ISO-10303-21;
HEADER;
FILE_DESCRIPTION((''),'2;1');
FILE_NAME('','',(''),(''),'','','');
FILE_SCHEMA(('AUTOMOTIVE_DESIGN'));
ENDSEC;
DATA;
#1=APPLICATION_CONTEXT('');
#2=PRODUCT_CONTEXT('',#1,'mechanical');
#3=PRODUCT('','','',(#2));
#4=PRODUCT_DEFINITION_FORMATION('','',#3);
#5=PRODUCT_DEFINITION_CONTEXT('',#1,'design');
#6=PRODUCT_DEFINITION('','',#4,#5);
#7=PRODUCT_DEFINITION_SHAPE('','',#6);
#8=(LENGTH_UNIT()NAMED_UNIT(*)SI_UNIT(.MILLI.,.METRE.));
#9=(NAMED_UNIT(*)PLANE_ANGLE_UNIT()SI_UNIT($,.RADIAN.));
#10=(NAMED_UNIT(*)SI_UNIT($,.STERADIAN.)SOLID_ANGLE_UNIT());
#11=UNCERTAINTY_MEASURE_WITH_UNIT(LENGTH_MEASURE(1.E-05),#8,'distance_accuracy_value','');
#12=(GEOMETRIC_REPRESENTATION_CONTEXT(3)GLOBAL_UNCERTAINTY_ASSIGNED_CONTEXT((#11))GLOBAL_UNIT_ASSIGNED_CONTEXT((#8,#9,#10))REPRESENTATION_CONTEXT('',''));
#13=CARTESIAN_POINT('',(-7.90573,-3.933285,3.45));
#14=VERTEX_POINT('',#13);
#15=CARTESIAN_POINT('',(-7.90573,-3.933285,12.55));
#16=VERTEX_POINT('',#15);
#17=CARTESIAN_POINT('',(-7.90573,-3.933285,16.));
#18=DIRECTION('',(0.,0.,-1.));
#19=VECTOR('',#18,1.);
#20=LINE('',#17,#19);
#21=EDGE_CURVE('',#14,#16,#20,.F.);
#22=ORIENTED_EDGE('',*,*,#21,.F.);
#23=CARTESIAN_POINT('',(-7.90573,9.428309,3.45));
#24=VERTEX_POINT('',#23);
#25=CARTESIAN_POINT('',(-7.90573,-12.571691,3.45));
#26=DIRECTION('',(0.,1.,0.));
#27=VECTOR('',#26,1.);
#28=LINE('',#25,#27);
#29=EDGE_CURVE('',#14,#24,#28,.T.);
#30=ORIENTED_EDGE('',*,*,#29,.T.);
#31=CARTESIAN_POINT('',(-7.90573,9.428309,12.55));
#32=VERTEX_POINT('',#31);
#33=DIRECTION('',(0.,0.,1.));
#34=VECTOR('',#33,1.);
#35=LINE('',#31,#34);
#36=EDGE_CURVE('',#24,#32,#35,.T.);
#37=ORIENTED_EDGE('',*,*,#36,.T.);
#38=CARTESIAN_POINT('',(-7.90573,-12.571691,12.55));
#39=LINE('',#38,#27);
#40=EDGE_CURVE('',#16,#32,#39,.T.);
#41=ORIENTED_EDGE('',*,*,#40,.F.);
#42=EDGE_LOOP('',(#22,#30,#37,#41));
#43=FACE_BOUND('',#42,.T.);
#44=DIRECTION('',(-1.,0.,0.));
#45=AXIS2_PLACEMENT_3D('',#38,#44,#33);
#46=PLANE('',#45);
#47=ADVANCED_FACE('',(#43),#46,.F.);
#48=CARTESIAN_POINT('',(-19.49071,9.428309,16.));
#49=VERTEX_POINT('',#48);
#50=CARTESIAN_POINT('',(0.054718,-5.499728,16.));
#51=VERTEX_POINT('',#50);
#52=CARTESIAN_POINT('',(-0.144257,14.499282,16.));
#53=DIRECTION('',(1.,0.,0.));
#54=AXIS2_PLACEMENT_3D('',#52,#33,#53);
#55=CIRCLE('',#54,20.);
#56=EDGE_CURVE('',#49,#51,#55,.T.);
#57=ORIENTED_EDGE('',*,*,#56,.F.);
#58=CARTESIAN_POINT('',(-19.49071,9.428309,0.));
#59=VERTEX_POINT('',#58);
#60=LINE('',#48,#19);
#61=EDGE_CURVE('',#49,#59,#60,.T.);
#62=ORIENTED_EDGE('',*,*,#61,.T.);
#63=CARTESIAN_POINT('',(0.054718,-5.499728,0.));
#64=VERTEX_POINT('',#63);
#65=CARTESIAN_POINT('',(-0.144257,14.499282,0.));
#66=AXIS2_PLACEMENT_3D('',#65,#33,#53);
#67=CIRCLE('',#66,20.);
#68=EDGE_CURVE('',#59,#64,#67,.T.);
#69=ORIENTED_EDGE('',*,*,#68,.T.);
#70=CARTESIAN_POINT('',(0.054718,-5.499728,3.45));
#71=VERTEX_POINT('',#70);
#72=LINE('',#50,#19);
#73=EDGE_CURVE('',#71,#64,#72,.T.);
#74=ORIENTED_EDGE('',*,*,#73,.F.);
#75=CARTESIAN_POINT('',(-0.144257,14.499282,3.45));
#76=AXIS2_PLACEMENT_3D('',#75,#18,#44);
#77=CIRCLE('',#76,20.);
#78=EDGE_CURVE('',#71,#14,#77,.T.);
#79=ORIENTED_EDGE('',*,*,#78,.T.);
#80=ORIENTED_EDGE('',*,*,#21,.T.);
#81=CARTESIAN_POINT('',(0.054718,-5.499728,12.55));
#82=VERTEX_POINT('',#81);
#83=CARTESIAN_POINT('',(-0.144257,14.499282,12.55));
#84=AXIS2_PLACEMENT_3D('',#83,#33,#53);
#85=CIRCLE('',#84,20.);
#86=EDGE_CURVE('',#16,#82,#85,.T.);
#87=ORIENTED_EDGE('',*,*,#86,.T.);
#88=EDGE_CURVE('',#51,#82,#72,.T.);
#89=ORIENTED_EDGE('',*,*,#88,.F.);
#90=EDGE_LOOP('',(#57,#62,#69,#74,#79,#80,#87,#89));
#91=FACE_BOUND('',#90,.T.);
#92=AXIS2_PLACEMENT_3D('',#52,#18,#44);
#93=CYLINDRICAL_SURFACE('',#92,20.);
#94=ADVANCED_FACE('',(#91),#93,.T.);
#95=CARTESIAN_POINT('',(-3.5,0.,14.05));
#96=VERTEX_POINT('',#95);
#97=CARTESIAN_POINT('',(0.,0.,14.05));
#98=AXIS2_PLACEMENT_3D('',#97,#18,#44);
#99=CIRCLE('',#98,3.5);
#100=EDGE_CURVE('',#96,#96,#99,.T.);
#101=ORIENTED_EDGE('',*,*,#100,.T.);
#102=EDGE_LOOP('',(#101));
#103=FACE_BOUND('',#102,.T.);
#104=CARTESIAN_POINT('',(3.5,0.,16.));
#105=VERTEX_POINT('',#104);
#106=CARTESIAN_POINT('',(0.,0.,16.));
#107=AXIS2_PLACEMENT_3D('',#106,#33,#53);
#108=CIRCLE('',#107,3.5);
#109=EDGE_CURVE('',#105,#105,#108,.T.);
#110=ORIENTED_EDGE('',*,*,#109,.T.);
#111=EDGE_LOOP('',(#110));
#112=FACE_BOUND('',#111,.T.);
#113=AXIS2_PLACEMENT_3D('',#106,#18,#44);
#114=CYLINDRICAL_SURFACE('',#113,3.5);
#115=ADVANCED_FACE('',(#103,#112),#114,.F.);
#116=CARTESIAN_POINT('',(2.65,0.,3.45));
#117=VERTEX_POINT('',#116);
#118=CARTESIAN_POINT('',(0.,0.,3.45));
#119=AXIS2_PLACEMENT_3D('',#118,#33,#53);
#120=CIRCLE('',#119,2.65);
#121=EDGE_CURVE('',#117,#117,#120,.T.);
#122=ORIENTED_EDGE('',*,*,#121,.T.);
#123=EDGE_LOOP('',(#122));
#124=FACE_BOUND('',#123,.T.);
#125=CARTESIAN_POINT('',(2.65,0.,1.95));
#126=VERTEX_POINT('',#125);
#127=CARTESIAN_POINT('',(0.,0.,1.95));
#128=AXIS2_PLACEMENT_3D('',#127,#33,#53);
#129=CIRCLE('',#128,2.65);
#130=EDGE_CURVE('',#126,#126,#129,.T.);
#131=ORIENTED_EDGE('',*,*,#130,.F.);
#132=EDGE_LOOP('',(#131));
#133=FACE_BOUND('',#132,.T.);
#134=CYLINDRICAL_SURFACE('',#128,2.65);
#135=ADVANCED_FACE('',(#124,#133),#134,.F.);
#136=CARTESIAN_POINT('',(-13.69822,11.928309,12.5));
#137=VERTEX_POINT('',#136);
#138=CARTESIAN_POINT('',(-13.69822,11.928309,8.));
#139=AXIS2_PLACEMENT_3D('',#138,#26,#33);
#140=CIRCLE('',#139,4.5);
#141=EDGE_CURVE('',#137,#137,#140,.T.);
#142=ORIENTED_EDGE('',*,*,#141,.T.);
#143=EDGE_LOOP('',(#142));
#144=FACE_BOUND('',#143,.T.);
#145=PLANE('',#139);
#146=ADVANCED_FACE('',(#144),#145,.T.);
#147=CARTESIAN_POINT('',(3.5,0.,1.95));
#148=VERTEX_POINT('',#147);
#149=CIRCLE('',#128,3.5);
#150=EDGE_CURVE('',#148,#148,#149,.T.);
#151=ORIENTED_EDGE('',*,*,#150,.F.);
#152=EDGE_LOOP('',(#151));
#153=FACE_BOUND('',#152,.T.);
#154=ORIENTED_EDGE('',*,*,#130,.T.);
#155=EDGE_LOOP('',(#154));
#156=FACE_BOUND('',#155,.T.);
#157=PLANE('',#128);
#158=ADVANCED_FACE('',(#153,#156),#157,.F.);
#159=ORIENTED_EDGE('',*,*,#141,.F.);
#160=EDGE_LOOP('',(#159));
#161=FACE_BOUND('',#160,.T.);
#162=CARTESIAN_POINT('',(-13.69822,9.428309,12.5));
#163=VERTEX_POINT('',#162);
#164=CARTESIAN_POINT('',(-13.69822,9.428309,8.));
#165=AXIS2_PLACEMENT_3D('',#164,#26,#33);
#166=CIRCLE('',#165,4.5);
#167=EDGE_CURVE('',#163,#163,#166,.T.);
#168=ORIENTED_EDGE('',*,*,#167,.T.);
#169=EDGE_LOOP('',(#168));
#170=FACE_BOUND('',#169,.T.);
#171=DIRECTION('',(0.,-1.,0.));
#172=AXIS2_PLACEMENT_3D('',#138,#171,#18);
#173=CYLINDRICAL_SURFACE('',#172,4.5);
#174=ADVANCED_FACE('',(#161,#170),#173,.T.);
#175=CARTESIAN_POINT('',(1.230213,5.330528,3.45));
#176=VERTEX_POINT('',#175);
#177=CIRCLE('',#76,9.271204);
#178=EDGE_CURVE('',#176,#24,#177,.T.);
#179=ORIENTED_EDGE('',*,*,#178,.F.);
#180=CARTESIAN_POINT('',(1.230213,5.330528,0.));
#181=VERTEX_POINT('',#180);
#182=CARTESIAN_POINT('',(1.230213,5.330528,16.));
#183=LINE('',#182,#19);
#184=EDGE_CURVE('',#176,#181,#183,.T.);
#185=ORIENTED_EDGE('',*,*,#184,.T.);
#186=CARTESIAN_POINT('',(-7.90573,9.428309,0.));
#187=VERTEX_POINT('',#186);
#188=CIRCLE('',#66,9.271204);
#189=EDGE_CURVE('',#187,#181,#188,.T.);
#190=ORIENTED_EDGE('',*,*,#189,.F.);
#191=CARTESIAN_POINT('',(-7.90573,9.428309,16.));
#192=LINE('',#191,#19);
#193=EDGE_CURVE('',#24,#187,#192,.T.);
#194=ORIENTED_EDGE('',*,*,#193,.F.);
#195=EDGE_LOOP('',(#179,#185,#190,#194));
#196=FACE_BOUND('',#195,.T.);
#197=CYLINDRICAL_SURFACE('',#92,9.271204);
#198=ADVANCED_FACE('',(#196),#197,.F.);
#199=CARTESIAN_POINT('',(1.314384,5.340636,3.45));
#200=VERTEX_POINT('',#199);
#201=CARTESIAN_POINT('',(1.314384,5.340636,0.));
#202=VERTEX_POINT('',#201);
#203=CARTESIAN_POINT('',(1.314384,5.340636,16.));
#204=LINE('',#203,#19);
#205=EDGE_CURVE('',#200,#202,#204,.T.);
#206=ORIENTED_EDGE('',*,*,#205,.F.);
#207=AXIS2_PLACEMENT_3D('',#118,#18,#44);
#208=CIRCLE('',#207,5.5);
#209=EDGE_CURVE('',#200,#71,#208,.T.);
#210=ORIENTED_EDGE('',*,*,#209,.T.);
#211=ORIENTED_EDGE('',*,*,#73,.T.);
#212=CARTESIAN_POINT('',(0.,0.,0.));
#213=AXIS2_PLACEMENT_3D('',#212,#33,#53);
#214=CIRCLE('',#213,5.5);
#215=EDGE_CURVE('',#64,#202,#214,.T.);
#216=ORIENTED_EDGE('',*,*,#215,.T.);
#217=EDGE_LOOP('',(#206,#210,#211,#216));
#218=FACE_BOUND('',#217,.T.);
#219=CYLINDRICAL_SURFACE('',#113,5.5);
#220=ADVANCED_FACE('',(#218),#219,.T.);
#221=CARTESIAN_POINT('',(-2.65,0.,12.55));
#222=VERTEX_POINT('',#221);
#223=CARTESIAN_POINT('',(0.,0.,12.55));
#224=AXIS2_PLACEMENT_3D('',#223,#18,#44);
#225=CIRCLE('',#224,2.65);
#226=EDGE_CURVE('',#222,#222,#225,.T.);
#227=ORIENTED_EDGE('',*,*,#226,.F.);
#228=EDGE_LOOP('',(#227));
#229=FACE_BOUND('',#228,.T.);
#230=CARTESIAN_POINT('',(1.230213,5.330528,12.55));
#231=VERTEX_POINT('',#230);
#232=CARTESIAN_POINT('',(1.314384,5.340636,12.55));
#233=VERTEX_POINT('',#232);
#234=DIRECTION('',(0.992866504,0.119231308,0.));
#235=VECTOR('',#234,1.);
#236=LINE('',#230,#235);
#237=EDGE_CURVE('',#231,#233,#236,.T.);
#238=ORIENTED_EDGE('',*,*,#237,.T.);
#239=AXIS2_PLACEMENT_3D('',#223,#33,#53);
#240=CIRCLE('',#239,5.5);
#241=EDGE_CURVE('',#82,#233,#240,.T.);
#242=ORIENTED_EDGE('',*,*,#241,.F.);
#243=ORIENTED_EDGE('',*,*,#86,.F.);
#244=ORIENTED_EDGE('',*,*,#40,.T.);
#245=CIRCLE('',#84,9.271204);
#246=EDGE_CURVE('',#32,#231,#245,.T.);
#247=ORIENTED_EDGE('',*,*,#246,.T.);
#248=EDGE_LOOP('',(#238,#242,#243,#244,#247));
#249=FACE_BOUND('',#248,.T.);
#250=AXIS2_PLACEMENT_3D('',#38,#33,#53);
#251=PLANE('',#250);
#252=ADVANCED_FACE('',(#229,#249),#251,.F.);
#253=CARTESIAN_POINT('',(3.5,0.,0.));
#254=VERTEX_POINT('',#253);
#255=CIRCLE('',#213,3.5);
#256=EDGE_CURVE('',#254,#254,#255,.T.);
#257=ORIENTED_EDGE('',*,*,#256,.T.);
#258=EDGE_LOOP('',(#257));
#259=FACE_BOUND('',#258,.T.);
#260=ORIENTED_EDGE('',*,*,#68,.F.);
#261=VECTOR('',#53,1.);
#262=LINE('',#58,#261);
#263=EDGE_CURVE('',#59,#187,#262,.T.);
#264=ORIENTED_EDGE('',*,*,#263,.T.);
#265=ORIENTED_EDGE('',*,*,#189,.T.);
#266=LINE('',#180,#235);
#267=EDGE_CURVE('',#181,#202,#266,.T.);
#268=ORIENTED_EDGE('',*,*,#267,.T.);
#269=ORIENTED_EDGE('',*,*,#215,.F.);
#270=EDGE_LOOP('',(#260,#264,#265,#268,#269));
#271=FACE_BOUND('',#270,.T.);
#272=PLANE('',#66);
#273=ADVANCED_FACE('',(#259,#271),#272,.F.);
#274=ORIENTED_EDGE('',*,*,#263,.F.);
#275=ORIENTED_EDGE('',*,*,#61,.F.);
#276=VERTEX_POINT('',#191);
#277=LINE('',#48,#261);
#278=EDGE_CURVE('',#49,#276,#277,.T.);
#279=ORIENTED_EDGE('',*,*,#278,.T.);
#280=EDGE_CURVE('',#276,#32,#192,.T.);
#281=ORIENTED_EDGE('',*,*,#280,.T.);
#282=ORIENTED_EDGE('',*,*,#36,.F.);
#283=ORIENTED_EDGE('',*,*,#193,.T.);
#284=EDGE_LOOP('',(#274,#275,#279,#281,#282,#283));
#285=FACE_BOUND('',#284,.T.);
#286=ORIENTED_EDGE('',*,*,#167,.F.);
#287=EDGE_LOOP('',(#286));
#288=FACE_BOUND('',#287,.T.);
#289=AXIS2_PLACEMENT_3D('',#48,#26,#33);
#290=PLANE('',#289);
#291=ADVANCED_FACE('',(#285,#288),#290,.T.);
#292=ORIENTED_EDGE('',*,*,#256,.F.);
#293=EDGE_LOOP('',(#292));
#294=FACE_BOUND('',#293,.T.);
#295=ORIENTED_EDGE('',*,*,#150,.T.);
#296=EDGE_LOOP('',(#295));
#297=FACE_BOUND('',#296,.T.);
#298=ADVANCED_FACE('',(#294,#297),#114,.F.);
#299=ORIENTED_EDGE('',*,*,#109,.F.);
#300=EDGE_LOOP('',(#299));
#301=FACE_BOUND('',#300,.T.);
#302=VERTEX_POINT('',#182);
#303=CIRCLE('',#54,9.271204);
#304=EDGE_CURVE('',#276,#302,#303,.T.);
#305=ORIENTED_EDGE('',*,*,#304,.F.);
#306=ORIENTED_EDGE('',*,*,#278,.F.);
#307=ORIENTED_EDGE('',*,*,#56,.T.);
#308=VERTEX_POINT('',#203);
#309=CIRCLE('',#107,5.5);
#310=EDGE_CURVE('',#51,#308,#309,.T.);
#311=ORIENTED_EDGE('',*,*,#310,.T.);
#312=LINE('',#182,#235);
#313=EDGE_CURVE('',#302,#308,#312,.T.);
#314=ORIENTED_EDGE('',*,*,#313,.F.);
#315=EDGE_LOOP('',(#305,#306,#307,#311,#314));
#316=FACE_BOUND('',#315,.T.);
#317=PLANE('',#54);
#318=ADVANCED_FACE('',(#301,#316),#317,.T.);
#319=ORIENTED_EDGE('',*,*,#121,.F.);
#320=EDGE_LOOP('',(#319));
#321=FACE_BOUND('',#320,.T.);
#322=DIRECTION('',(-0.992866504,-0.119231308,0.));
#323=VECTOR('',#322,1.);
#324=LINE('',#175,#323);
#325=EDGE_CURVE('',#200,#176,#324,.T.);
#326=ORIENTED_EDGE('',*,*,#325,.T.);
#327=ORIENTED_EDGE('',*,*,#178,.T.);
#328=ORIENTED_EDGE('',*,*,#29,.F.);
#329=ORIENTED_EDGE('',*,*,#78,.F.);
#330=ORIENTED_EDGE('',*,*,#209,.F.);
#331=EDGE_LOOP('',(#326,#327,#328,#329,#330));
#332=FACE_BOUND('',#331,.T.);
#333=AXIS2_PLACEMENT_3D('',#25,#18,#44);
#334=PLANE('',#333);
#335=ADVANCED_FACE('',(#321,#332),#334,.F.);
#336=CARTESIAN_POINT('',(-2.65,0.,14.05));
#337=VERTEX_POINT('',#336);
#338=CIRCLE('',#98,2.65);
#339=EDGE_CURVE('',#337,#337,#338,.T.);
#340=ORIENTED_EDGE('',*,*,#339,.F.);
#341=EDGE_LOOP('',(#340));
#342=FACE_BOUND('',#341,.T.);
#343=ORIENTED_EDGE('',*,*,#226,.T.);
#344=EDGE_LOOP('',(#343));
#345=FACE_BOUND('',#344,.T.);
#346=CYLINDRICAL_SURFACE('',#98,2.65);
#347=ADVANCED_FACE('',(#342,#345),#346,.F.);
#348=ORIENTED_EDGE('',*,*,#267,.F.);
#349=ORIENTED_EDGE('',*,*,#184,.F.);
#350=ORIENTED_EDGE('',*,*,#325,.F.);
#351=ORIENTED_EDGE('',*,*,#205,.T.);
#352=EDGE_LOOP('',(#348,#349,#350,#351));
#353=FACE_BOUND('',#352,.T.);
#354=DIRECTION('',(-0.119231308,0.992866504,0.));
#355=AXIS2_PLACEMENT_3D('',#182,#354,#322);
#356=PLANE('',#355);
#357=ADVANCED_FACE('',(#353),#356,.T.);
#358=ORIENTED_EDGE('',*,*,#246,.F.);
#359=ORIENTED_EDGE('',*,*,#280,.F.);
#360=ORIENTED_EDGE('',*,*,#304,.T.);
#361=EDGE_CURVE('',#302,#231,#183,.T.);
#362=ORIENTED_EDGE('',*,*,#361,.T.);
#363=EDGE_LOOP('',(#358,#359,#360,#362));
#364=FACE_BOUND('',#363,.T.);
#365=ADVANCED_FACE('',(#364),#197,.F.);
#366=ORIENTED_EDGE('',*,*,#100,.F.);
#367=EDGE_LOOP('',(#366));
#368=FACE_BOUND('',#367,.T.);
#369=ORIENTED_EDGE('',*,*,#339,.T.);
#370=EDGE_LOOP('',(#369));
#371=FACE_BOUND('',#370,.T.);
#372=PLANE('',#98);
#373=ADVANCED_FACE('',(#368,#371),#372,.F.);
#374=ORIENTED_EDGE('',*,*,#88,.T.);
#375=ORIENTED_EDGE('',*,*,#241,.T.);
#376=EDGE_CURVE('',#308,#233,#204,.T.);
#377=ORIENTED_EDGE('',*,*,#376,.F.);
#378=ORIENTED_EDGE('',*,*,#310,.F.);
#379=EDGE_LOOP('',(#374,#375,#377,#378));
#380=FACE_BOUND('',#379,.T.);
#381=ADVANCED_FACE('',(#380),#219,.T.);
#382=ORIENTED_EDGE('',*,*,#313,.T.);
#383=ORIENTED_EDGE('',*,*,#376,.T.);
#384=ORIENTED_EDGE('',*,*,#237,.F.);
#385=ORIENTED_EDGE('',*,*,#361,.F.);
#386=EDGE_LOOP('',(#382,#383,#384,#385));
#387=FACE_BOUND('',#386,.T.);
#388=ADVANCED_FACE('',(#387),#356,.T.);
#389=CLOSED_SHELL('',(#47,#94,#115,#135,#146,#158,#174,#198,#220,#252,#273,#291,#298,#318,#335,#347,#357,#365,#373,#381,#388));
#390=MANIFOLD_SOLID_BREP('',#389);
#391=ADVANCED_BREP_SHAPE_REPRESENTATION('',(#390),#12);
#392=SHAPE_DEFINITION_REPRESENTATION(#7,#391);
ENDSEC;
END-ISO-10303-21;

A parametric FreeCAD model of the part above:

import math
import FreeCAD as App
import Part
import Sketcher
from FreeCAD import Vector

doc = App.newDocument("Part")
body = doc.addObject("PartDesign::Body", "Body")

sketch1 = doc.addObject("Sketcher::SketchObject", "Sketch")
body.addObject(sketch1)
sketch1.AttachmentSupport = (doc.XY_Plane, [""])
sketch1.MapMode = "FlatFace"
sketch1.addGeometry([
    Part.LineSegment(Vector(-7.91, 9.43, 0), Vector(-19.49, 9.43, 0)),
    Part.ArcOfCircle(Part.Circle(Vector(-0.14, 14.5, 0), Vector(0, 0, 1), 20), math.radians(-165), math.radians(-89)),
    Part.ArcOfCircle(Part.Circle(Vector(0, 0, 0), Vector(0, 0, 1), 5.5), math.radians(-89), math.radians(76)),
    Part.LineSegment(Vector(1.31, 5.34, 0), Vector(1.23, 5.33, 0)),
    Part.ArcOfCircle(Part.Circle(Vector(-0.14, 14.5, 0), Vector(0, 0, 1), 9.27), math.radians(-147), math.radians(-81)),
    Part.Circle(Vector(0, 0, 0), Vector(0, 0, 1), 3.5),
], False)
sketch1.addConstraint([
    Sketcher.Constraint("Coincident", 0, 2, 1, 1),
    Sketcher.Constraint("Tangent", 1, 2, 2, 1),
    Sketcher.Constraint("Coincident", 2, 2, 3, 1),
    Sketcher.Constraint("Coincident", 3, 2, 4, 2),
    Sketcher.Constraint("Coincident", 4, 1, 0, 1),
    Sketcher.Constraint("Horizontal", 0),
    Sketcher.Constraint("Coincident", 2, 3, -1, 1),
    Sketcher.Constraint("Coincident", 5, 3, -1, 1),
    Sketcher.Constraint("Coincident", 4, 3, 1, 3),
    Sketcher.Constraint("Diameter", 5, 7.0),
    Sketcher.Constraint("Radius", 1, 20.0),
    Sketcher.Constraint("Radius", 2, 5.5),
    Sketcher.Constraint("Radius", 4, 9.271204),
    Sketcher.Constraint("DistanceX", 0, 2, 0, 1, 11.58498),
    Sketcher.Constraint("DistanceX", 0, 2, -1, 1, 19.49071),
    Sketcher.Constraint("DistanceY", -1, 1, 3, 2, 5.330528),
    Sketcher.Constraint("DistanceX", 1, 3, 2, 2, 1.458642),
])
pad1 = doc.addObject("PartDesign::Pad", "Pad")
body.addObject(pad1)
pad1.Profile = sketch1
pad1.Length = 16

sketch2 = doc.addObject("Sketcher::SketchObject", "Sketch001")
body.addObject(sketch2)
sketch2.AttachmentSupport = (doc.XZ_Plane, [""])
sketch2.MapMode = "FlatFace"
sketch2.AttachmentOffset = App.Placement(Vector(0, 0, -9.428309), App.Rotation())
sketch2.addGeometry([
    Part.LineSegment(Vector(-8, 3, 0), Vector(-8, 13, 0)),
    Part.LineSegment(Vector(-8, 13, 0), Vector(10, 13, 0)),
    Part.LineSegment(Vector(10, 13, 0), Vector(10, 3, 0)),
    Part.LineSegment(Vector(10, 3, 0), Vector(-8, 3, 0)),
], False)
sketch2.addConstraint([
    Sketcher.Constraint("Coincident", 0, 2, 1, 1),
    Sketcher.Constraint("Coincident", 1, 2, 2, 1),
    Sketcher.Constraint("Coincident", 2, 2, 3, 1),
    Sketcher.Constraint("Coincident", 3, 2, 0, 1),
    Sketcher.Constraint("Vertical", 0),
    Sketcher.Constraint("Horizontal", 1),
    Sketcher.Constraint("Vertical", 2),
    Sketcher.Constraint("Horizontal", 3),
    Sketcher.Constraint("DistanceY", 0, 1, 0, 2, 9.1),
    Sketcher.Constraint("DistanceY", -1, 1, 0, 2, 12.55),
    Sketcher.Constraint("DistanceX", 1, 1, 1, 2, 18.232701),
    Sketcher.Constraint("DistanceX", 0, 2, -1, 1, 7.90573),
])
pocket1 = doc.addObject("PartDesign::Pocket", "Pocket")
body.addObject(pocket1)
pocket1.Profile = sketch2
pocket1.Length = 22
pocket1.Reversed = True

sketch3 = doc.addObject("Sketcher::SketchObject", "Sketch002")
body.addObject(sketch3)
sketch3.AttachmentSupport = (doc.XY_Plane, [""])
sketch3.MapMode = "FlatFace"
sketch3.AttachmentOffset = App.Placement(Vector(0, 0, 12.55), App.Rotation())
sketch3.addGeometry([
    Part.Circle(Vector(0, 0, 0), Vector(0, 0, 1), 3.5),
    Part.Circle(Vector(0, 0, 0), Vector(0, 0, 1), 2.6),
], False)
sketch3.addConstraint([
    Sketcher.Constraint("Coincident", 0, 3, -1, 1),
    Sketcher.Constraint("Coincident", 1, 3, -1, 1),
    Sketcher.Constraint("Diameter", 0, 7.0),
    Sketcher.Constraint("Diameter", 1, 5.3),
])
pad2 = doc.addObject("PartDesign::Pad", "Pad001")
body.addObject(pad2)
pad2.Profile = sketch3
pad2.Length = 1.5

sketch4 = doc.addObject("Sketcher::SketchObject", "Sketch003")
body.addObject(sketch4)
sketch4.AttachmentSupport = (doc.XY_Plane, [""])
sketch4.MapMode = "FlatFace"
sketch4.AttachmentOffset = App.Placement(Vector(0, 0, 1.95), App.Rotation())
sketch4.addGeometry([
    Part.Circle(Vector(0, 0, 0), Vector(0, 0, 1), 3.5),
    Part.Circle(Vector(0, 0, 0), Vector(0, 0, 1), 2.6),
], False)
sketch4.addConstraint([
    Sketcher.Constraint("Coincident", 0, 3, -1, 1),
    Sketcher.Constraint("Coincident", 1, 3, -1, 1),
    Sketcher.Constraint("Diameter", 0, 7.0),
    Sketcher.Constraint("Diameter", 1, 5.3),
])
pad3 = doc.addObject("PartDesign::Pad", "Pad002")
body.addObject(pad3)
pad3.Profile = sketch4
pad3.Length = 1.5

sketch5 = doc.addObject("Sketcher::SketchObject", "Sketch004")
body.addObject(sketch5)
sketch5.AttachmentSupport = (doc.XZ_Plane, [""])
sketch5.MapMode = "FlatFace"
sketch5.AttachmentOffset = App.Placement(Vector(0, 0, -9.428309), App.Rotation())
sketch5.addGeometry(Part.Circle(Vector(-13.7, 8, 0), Vector(0, 0, 1), 4.5), False)
sketch5.addConstraint([
    Sketcher.Constraint("Diameter", 0, 9.0),
    Sketcher.Constraint("DistanceY", -1, 1, 0, 3, 8.0),
    Sketcher.Constraint("DistanceX", 0, 3, -1, 1, 13.69822),
])
pad4 = doc.addObject("PartDesign::Pad", "Pad003")
body.addObject(pad4)
pad4.Profile = sketch5
pad4.Length = 2.5
pad4.Reversed = True

doc.recompute()
